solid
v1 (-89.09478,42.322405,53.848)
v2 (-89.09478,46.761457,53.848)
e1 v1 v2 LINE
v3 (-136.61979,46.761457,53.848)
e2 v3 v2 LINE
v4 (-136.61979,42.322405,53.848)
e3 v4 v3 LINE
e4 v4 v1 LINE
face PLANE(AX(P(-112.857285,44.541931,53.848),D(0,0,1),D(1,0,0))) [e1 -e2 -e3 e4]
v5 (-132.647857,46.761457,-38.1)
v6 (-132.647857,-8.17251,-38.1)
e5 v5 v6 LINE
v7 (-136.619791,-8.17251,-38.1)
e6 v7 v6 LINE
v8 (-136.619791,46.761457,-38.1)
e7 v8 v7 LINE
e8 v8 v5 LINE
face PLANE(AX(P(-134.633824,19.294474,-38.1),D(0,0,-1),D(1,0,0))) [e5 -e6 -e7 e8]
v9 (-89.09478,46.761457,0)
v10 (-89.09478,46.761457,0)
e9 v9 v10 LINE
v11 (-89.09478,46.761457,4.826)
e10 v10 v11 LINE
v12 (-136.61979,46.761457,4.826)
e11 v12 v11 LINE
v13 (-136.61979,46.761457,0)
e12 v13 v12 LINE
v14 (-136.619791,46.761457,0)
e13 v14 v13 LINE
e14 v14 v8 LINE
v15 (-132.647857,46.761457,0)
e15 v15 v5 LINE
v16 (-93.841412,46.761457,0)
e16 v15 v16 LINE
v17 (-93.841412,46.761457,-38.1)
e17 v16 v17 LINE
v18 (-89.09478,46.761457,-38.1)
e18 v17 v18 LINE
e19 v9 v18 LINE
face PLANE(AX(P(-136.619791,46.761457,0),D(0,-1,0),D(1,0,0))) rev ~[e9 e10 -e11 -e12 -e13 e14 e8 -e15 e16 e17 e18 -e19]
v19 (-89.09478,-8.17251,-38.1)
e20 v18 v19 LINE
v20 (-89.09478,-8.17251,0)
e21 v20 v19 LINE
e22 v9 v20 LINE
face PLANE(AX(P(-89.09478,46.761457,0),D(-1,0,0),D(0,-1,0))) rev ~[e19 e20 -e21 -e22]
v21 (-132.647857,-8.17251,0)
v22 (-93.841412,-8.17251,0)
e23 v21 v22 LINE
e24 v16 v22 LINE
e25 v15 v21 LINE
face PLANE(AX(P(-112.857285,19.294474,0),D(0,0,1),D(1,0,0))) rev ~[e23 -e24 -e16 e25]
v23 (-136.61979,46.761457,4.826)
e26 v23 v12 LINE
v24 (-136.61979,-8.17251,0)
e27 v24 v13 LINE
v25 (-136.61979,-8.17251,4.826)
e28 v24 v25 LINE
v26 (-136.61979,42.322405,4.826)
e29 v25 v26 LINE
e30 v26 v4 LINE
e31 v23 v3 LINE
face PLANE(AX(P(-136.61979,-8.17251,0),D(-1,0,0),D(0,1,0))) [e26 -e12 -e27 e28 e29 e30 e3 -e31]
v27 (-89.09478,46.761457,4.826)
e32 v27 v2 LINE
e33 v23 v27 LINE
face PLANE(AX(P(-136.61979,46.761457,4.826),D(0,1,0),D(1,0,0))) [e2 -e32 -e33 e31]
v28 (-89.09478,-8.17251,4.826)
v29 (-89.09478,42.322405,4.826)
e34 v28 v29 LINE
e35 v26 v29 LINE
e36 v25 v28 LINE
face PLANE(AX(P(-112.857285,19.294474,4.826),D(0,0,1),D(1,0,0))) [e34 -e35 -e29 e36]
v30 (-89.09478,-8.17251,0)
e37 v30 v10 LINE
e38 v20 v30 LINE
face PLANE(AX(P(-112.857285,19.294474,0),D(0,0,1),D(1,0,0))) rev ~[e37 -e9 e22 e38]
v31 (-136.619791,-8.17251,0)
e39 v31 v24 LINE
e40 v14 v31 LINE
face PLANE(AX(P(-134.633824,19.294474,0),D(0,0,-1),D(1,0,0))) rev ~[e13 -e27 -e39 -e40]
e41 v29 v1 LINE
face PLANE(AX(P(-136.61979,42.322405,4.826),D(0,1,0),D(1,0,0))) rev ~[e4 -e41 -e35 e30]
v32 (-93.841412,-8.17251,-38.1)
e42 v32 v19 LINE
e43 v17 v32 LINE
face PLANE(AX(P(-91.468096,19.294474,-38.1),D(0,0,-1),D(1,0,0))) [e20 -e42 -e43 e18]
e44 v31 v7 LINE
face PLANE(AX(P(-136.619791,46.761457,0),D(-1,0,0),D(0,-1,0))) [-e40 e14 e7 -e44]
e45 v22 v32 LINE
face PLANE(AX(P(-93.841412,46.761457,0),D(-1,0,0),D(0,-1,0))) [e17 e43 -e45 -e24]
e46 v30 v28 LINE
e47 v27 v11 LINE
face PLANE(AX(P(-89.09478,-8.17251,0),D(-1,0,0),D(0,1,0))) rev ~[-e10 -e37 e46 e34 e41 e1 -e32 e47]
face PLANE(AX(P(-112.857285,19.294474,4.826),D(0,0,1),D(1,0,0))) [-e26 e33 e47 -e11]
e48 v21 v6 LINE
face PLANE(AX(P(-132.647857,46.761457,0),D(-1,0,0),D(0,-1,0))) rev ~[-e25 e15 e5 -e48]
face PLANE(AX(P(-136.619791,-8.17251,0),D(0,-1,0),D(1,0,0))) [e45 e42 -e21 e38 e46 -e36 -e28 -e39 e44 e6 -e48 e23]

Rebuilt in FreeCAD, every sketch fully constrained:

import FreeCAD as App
import Part
import Sketcher
Q = App.Units.Quantity


def add_polygon(sketch, points):
    """Adds a closed chain of lines whose ends are joined by coincident constraints."""
    first, n = sketch.GeometryCount, len(points)
    for a, b in zip(points, points[1:] + points[:1]):
        sketch.addGeometry(Part.LineSegment(App.Vector(*a, 0), App.Vector(*b, 0)), False)
    for i in range(n):
        sketch.addConstraint(Sketcher.Constraint("Coincident", first + i, 2, first + (i + 1) % n, 1))

doc = App.newDocument("Part")
body = doc.addObject("PartDesign::Body", "Body")

sketch1 = doc.addObject("Sketcher::SketchObject", "Sketch")
body.addObject(sketch1)
sketch1.AttachmentSupport = (doc.XY_Plane, [""])
sketch1.MapMode = "FlatFace"
add_polygon(sketch1, [(-136.61979, 46.761457), (-136.61979, -8.17251), (-89.09478, -8.17251), (-89.09478, 46.761457)])
sketch1.addConstraint(Sketcher.Constraint("Vertical", 0))
sketch1.addConstraint(Sketcher.Constraint("Horizontal", 1))
sketch1.addConstraint(Sketcher.Constraint("Vertical", 2))
sketch1.addConstraint(Sketcher.Constraint("Horizontal", 3))
sketch1.addConstraint(Sketcher.Constraint("DistanceX", 1, 1, 1, 2, Q("47.525011 mm")))
sketch1.addConstraint(Sketcher.Constraint("DistanceY", 0, 2, 0, 1, Q("54.933967 mm")))
sketch1.addConstraint(Sketcher.Constraint("DistanceX", 0, 2, -1, 1, Q("136.61979 mm")))
sketch1.addConstraint(Sketcher.Constraint("DistanceY", 0, 2, -1, 1, Q("8.17251 mm")))
pad1 = doc.addObject("PartDesign::Pad", "Pad")
body.addObject(pad1)
pad1.Profile = sketch1
pad1.Length = Q("0.19 in")

sketch2 = doc.addObject("Sketcher::SketchObject", "Sketch001")
body.addObject(sketch2)
sketch2.AttachmentSupport = (doc.XY_Plane, [""])
sketch2.MapMode = "FlatFace"
sketch2.AttachmentOffset = App.Placement(App.Vector(0, 0, 0.19 * 25.4), App.Rotation())
add_polygon(sketch2, [(-136.61979, 46.761457), (-136.61979, 42.322405), (-89.09478, 42.322405), (-89.09478, 46.761457)])
sketch2.addConstraint(Sketcher.Constraint("Vertical", 0))
sketch2.addConstraint(Sketcher.Constraint("Horizontal", 1))
sketch2.addConstraint(Sketcher.Constraint("Vertical", 2))
sketch2.addConstraint(Sketcher.Constraint("Horizontal", 3))
sketch2.addConstraint(Sketcher.Constraint("DistanceX", 1, 1, 1, 2, Q("47.525011 mm")))
sketch2.addConstraint(Sketcher.Constraint("DistanceY", 0, 2, 0, 1, Q("4.439052 mm")))
sketch2.addConstraint(Sketcher.Constraint("DistanceX", 0, 2, -1, 1, Q("136.61979 mm")))
sketch2.addConstraint(Sketcher.Constraint("DistanceY", -1, 1, 0, 2, Q("42.322405 mm")))
pad2 = doc.addObject("PartDesign::Pad", "Pad001")
body.addObject(pad2)
pad2.Profile = sketch2
pad2.Length = Q("1.93 in")

sketch3 = doc.addObject("Sketcher::SketchObject", "Sketch002")
body.addObject(sketch3)
sketch3.AttachmentSupport = (doc.XY_Plane, [""])
sketch3.MapMode = "FlatFace"
add_polygon(sketch3, [(-93.841412, -8.17251), (-93.841412, 46.761457), (-89.09478, 46.761457), (-89.09478, -8.17251)])
sketch3.addConstraint(Sketcher.Constraint("Vertical", 0))
sketch3.addConstraint(Sketcher.Constraint("Horizontal", 1))
sketch3.addConstraint(Sketcher.Constraint("Vertical", 2))
sketch3.addConstraint(Sketcher.Constraint("Horizontal", 3))
sketch3.addConstraint(Sketcher.Constraint("DistanceX", 1, 1, 1, 2, Q("4.746631 mm")))
sketch3.addConstraint(Sketcher.Constraint("DistanceY", 0, 1, 0, 2, Q("54.933967 mm")))
sketch3.addConstraint(Sketcher.Constraint("DistanceX", 0, 2, -1, 1, Q("93.841412 mm")))
sketch3.addConstraint(Sketcher.Constraint("DistanceY", 2, 2, -1, 1, Q("8.17251 mm")))
pad3 = doc.addObject("PartDesign::Pad", "Pad002")
body.addObject(pad3)
pad3.Profile = sketch3
pad3.Length = Q("1.5 in")
pad3.Reversed = True

sketch4 = doc.addObject("Sketcher::SketchObject", "Sketch003")
body.addObject(sketch4)
sketch4.AttachmentSupport = (doc.XY_Plane, [""])
sketch4.MapMode = "FlatFace"
add_polygon(sketch4, [(-136.619791, -8.17251), (-136.619791, 46.761457), (-132.647857, 46.761457), (-132.647857, -8.17251)])
sketch4.addConstraint(Sketcher.Constraint("Vertical", 0))
sketch4.addConstraint(Sketcher.Constraint("Horizontal", 1))
sketch4.addConstraint(Sketcher.Constraint("Vertical", 2))
sketch4.addConstraint(Sketcher.Constraint("Horizontal", 3))
sketch4.addConstraint(Sketcher.Constraint("DistanceX", 1, 1, 1, 2, Q("3.971934 mm")))
sketch4.addConstraint(Sketcher.Constraint("DistanceY", 0, 1, 0, 2, Q("54.933967 mm")))
sketch4.addConstraint(Sketcher.Constraint("DistanceX", 0, 2, -1, 1, Q("136.619791 mm")))
sketch4.addConstraint(Sketcher.Constraint("DistanceY", 2, 2, -1, 1, Q("8.17251 mm")))
pad4 = doc.addObject("PartDesign::Pad", "Pad003")
body.addObject(pad4)
pad4.Profile = sketch4
pad4.Length = Q("1.5 in")
pad4.Reversed = True

doc.recompute()
